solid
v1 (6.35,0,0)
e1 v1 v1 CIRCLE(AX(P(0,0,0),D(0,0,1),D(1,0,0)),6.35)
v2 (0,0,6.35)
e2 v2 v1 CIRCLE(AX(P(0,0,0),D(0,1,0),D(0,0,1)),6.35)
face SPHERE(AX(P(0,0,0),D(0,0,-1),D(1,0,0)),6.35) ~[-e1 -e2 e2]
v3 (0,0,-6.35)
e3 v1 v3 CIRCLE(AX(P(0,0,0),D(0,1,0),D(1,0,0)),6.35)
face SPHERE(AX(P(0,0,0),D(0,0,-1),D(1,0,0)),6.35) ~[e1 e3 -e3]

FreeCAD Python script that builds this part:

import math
import FreeCAD as App
import Part
import Sketcher
Q = App.Units.Quantity

doc = App.newDocument("Part")
body = doc.addObject("PartDesign::Body", "Body")

sketch1 = body.newObject("Sketcher::SketchObject", "Sketch")
sketch1.AttachmentSupport = (doc.getObject("XZ_Plane"), [""])
sketch1.MapMode = "FlatFace"
sketch1.addGeometry(Part.ArcOfCircle(Part.Circle(App.Vector(0, 0, 0), App.Vector(0, 0, 1), 6), math.radians(0), math.radians(90)), False)
sketch1.addGeometry(Part.ArcOfCircle(Part.Circle(App.Vector(0, 0, 0), App.Vector(0, 0, 1), 6), math.radians(-90), math.radians(0)), False)
sketch1.addGeometry(Part.LineSegment(App.Vector(0, -6, 0), App.Vector(0, 6, 0)), False)
sketch1.addConstraint(Sketcher.Constraint("Tangent", 0, 1, 1, 2))
sketch1.addConstraint(Sketcher.Constraint("Coincident", 1, 1, 2, 1))
sketch1.addConstraint(Sketcher.Constraint("Coincident", 2, 2, 0, 2))
sketch1.addConstraint(Sketcher.Constraint("Vertical", 2))
sketch1.addConstraint(Sketcher.Constraint("Coincident", 0, 3, -1, 1))
sketch1.addConstraint(Sketcher.Constraint("Equal", 0, 1))
sketch1.addConstraint(Sketcher.Constraint("PointOnObject", 0, 1, -1))
sketch1.addConstraint(Sketcher.Constraint("PointOnObject", 1, 1, -2))
sketch1.addConstraint(Sketcher.Constraint("Radius", 0, Q("0.25 in")))
revolution = body.newObject("PartDesign::Revolution", "Revolution")
revolution.Profile = sketch1
revolution.ReferenceAxis = (sketch1, ["V_Axis"])
revolution.Angle = 360

doc.recompute()
